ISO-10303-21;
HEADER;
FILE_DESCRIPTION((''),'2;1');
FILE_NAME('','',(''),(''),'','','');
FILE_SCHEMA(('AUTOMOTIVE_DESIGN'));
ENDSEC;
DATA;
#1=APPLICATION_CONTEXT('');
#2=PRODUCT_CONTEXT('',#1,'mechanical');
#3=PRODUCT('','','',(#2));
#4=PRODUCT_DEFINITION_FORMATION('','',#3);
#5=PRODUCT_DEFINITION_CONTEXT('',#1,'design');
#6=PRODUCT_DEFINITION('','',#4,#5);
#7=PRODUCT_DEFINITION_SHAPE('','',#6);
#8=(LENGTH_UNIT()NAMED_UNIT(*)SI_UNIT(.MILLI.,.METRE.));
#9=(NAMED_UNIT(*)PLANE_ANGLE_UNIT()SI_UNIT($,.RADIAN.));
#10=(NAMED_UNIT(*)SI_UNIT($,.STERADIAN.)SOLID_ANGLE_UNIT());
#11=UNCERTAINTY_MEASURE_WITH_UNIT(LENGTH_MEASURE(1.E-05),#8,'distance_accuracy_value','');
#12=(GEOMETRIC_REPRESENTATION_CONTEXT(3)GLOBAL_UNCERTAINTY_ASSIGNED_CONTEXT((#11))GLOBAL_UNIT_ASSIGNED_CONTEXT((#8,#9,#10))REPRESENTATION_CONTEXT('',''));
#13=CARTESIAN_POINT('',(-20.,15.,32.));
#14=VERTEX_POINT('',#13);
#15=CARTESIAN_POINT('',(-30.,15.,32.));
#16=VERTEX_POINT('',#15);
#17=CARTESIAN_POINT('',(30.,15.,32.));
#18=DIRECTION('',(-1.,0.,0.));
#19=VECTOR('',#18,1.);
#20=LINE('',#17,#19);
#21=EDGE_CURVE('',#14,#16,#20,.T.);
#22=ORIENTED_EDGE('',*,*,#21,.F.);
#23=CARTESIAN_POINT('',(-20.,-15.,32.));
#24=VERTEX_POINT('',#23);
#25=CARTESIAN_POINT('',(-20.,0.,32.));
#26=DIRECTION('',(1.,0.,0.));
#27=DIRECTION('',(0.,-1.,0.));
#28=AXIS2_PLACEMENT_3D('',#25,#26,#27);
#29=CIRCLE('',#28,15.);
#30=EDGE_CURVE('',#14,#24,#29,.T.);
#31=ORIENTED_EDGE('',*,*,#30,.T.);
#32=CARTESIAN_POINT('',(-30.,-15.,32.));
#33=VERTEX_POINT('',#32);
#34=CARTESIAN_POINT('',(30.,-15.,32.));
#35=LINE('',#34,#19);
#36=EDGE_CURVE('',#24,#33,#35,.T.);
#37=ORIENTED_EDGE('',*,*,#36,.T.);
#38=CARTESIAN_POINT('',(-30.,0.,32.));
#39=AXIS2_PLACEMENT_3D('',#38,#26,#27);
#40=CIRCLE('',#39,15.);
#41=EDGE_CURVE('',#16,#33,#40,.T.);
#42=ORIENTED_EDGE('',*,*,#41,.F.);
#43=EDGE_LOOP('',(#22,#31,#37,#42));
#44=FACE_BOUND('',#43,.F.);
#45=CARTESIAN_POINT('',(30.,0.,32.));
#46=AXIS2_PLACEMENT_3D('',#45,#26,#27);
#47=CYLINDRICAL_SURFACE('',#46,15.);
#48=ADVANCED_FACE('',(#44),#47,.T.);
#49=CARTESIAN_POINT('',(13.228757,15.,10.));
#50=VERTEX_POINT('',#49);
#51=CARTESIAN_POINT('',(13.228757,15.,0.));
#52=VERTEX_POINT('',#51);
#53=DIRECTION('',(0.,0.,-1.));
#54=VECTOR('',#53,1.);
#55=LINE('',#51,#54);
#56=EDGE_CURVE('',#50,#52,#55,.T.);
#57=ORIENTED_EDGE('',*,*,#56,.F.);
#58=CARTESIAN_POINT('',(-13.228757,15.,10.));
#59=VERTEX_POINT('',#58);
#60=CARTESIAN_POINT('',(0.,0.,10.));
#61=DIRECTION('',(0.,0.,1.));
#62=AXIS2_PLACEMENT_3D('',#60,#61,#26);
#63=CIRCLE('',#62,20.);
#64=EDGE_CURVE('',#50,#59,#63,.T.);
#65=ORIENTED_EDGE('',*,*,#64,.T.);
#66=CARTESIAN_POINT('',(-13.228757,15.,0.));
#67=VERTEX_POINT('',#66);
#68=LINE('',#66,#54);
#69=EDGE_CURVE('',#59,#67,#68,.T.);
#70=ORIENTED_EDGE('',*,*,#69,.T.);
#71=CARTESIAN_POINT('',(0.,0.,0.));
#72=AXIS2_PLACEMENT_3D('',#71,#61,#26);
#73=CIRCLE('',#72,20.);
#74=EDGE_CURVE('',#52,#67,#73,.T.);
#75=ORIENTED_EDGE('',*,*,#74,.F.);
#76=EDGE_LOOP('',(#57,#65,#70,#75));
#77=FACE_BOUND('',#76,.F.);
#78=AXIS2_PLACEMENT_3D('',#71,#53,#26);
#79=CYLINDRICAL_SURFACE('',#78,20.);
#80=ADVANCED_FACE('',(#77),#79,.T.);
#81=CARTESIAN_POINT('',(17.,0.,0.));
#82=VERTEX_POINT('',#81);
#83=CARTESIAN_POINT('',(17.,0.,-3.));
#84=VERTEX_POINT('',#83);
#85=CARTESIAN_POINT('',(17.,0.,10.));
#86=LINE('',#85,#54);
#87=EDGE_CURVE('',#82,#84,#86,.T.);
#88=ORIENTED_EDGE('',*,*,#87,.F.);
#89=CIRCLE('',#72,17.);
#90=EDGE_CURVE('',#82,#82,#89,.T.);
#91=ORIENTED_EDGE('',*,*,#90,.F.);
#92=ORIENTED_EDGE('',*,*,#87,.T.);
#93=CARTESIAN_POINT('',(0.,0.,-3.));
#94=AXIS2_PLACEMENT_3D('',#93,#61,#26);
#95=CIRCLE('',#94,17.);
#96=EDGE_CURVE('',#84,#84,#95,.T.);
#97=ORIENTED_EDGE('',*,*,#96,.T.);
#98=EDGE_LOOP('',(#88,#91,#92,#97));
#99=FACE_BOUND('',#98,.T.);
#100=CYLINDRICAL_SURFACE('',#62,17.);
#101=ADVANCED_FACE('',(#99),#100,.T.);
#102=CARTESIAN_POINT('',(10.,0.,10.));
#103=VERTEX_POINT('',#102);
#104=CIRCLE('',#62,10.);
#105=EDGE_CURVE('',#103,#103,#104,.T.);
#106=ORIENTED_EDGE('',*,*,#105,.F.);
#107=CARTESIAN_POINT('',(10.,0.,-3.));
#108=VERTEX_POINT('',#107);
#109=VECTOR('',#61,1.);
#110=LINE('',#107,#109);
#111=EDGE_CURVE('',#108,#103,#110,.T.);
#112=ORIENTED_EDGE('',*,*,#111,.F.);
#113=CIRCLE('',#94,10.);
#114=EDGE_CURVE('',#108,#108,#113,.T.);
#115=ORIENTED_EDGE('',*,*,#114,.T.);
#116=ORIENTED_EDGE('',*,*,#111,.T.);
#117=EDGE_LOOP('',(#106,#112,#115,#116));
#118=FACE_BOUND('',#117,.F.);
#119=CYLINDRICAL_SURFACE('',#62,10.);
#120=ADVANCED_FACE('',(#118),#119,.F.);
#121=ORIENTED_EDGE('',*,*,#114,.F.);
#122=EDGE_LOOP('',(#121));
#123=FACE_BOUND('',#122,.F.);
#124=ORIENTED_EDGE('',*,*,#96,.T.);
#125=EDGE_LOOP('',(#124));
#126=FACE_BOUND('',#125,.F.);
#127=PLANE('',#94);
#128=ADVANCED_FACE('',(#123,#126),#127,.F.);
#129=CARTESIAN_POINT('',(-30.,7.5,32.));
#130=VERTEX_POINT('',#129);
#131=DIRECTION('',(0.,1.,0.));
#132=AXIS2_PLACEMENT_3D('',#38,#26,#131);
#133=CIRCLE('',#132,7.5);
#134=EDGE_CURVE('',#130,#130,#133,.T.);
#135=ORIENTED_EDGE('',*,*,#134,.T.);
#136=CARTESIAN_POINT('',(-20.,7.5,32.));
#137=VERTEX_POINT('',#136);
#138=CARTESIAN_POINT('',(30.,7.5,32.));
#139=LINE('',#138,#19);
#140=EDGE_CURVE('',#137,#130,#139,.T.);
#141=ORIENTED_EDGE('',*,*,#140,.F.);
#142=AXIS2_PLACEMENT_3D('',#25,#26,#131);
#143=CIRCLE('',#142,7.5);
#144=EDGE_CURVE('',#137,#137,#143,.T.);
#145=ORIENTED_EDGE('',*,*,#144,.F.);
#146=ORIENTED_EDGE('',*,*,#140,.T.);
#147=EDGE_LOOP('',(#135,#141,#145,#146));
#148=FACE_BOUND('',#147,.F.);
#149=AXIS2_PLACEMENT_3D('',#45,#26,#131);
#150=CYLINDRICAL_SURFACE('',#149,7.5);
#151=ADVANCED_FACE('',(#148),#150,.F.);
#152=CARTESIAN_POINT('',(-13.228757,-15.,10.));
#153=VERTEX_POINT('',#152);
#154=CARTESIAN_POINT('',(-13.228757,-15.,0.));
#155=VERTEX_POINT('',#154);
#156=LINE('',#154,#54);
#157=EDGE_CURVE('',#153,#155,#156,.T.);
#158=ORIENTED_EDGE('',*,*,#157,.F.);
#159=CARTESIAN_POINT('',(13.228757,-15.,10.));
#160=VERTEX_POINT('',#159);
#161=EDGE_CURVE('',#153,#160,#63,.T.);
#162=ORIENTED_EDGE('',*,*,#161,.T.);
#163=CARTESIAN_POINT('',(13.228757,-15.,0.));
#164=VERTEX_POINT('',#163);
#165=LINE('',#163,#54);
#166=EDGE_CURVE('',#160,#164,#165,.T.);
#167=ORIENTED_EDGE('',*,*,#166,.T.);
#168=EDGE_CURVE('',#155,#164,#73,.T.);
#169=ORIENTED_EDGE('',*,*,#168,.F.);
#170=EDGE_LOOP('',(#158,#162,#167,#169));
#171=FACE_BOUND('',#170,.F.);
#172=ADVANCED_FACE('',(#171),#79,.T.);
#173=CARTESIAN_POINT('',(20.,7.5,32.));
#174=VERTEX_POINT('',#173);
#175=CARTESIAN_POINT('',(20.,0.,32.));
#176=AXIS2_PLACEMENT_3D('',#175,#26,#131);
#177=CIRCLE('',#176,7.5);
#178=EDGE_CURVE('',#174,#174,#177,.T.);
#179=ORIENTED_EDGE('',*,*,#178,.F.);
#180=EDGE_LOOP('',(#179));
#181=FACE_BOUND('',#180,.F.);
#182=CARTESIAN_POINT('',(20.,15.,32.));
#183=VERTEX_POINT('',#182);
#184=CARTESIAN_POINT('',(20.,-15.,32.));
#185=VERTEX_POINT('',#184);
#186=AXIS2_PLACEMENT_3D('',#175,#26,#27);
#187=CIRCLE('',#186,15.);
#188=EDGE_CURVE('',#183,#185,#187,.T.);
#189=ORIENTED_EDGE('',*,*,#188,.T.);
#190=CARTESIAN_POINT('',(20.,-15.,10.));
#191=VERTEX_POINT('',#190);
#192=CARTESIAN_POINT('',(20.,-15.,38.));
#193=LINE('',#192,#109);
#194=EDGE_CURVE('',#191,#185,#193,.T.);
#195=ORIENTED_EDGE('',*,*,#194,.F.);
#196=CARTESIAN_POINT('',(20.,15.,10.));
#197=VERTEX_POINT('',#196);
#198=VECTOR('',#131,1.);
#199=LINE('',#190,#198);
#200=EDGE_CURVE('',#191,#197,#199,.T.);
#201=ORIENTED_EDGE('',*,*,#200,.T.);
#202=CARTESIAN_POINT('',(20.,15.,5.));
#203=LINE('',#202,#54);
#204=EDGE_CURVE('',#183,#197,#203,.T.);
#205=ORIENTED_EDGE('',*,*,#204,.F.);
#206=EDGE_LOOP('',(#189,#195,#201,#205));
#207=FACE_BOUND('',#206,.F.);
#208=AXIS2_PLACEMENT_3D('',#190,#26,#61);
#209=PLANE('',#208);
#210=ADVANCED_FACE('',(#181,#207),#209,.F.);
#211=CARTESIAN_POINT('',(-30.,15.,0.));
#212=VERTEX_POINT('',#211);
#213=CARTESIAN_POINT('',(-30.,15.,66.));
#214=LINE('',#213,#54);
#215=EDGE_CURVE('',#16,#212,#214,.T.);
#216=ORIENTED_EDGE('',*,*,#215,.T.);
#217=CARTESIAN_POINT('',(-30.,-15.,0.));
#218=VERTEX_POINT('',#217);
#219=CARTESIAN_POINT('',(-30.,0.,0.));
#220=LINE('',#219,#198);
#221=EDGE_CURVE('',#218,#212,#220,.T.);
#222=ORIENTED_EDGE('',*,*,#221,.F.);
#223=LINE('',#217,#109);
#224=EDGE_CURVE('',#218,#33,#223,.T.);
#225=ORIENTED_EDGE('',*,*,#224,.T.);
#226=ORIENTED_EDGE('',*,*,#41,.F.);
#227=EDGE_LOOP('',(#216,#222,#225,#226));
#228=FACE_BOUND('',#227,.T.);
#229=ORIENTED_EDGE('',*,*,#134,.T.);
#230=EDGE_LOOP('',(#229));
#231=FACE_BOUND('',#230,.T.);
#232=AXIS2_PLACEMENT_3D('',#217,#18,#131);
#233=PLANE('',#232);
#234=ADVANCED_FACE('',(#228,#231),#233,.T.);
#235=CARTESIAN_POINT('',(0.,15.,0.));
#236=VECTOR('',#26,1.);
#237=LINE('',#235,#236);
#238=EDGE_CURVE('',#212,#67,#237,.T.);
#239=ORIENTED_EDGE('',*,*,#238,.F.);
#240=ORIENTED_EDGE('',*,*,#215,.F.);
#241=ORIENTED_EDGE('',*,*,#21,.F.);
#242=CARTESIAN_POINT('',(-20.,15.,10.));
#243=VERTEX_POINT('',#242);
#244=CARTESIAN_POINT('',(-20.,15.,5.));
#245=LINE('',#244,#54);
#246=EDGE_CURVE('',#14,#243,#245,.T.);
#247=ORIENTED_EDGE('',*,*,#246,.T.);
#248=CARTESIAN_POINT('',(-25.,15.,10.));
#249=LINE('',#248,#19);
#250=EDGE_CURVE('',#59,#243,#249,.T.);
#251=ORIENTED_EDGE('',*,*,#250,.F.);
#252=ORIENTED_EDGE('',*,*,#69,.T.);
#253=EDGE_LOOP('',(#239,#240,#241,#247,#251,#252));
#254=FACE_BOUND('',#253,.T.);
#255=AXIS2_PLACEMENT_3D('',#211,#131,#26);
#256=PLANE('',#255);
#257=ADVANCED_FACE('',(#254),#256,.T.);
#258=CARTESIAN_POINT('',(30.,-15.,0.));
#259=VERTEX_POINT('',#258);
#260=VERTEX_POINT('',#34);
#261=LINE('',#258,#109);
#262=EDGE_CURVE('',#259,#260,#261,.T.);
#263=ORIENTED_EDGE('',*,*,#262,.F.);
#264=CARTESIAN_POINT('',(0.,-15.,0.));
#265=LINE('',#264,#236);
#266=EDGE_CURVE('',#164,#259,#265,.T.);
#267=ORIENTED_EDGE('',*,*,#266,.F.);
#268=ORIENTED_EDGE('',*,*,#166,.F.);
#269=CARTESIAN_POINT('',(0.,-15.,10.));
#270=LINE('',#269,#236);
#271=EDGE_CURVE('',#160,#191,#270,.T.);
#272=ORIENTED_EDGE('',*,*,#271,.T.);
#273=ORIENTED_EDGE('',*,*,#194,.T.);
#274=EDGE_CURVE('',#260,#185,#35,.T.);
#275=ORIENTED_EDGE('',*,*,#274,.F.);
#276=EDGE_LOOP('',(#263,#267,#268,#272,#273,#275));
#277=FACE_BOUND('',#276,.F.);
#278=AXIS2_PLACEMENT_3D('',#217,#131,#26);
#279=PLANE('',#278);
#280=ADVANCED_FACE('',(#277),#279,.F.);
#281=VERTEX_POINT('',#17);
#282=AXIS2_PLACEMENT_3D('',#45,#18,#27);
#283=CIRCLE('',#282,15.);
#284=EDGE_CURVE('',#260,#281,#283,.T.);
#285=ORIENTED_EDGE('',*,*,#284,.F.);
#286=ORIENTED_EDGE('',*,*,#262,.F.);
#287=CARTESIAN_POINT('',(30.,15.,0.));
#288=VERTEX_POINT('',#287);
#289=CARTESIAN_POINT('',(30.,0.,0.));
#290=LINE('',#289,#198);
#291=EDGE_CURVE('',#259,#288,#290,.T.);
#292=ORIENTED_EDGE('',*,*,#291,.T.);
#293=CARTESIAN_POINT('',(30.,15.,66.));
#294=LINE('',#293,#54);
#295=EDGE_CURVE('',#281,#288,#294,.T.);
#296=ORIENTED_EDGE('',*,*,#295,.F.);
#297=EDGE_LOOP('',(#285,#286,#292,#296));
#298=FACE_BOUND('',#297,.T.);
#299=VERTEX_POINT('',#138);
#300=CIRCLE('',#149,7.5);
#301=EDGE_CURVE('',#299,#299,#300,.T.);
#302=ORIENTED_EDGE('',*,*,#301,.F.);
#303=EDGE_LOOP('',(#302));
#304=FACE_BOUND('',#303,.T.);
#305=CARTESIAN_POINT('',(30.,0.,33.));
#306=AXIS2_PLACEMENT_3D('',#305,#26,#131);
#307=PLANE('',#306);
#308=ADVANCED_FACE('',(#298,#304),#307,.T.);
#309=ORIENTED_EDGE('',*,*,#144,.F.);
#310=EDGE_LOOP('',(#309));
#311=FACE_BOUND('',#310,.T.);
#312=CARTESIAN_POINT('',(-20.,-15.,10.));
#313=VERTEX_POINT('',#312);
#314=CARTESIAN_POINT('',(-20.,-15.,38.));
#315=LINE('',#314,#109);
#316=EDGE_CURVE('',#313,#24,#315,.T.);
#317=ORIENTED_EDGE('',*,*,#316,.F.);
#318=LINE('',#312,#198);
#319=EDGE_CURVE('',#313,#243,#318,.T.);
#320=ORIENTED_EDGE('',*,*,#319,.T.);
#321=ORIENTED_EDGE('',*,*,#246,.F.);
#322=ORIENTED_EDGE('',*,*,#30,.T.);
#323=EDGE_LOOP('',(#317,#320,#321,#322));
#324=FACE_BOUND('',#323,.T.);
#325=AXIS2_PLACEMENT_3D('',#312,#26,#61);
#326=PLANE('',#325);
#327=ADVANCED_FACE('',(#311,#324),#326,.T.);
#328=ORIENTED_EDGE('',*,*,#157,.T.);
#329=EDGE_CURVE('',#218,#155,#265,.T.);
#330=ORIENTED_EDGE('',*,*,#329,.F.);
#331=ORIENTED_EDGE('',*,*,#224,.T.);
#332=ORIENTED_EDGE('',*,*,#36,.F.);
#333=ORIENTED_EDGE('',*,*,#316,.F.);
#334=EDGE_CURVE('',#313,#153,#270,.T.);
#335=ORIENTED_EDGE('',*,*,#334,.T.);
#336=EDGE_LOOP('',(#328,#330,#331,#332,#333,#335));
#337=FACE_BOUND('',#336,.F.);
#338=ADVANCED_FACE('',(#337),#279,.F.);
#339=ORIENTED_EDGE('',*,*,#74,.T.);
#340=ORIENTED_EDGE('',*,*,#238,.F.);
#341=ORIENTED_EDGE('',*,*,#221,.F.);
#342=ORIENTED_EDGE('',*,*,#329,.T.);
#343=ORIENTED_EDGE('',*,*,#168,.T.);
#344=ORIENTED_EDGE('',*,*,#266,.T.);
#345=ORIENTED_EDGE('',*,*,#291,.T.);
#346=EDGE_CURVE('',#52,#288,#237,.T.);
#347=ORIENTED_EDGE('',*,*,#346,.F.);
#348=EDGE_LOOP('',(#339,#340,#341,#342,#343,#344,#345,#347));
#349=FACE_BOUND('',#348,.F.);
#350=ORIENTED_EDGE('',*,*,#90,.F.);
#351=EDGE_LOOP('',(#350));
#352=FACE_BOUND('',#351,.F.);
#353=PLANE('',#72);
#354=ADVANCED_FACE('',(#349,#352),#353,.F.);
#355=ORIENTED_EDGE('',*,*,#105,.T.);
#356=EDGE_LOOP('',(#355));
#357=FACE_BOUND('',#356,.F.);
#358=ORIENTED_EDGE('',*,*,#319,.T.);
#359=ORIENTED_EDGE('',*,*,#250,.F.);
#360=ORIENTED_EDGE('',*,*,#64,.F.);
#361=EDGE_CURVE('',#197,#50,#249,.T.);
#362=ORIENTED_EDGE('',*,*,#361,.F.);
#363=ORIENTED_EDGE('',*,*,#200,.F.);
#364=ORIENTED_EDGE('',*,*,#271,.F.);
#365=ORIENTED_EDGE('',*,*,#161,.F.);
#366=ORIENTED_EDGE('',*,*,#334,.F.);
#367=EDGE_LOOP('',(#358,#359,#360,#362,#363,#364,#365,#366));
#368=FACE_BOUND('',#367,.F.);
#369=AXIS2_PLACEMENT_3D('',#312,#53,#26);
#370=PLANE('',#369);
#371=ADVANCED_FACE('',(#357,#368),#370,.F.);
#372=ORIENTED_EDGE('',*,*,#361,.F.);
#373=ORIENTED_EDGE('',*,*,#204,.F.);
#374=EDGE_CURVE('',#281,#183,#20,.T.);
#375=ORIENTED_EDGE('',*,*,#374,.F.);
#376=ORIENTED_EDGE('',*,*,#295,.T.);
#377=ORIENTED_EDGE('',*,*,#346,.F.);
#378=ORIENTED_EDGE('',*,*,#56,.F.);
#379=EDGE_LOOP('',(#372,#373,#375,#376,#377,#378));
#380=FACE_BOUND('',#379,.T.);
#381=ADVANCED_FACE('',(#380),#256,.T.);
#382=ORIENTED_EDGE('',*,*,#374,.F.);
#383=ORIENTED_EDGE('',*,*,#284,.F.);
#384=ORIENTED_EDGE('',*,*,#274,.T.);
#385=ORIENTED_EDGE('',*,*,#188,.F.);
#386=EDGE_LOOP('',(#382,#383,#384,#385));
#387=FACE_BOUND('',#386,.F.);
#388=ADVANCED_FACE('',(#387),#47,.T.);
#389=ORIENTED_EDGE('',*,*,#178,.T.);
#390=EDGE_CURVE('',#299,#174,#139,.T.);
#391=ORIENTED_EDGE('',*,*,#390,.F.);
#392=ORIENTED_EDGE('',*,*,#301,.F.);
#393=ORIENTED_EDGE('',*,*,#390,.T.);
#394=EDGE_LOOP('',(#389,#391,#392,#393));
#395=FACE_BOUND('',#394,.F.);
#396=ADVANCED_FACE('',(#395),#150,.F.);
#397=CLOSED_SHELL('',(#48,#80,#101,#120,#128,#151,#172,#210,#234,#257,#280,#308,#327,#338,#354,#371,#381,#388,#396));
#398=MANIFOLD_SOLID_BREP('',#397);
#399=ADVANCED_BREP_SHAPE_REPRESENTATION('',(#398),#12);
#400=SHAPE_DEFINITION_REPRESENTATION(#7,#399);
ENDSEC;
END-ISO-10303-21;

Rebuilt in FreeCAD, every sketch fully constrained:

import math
import FreeCAD as App
import Part
import Sketcher

V = App.Vector
Q = App.Units.Quantity


def add_polygon(sketch, points):
    """Adds a closed chain of lines whose ends are joined by coincident constraints."""
    first, n = sketch.GeometryCount, len(points)
    for a, b in zip(points, points[1:] + points[:1]):
        sketch.addGeometry(Part.LineSegment(App.Vector(*a, 0), App.Vector(*b, 0)), False)
    for i in range(n):
        sketch.addConstraint(Sketcher.Constraint("Coincident", first + i, 2, first + (i + 1) % n, 1))

doc = App.newDocument("Part")
params = doc.addObject("Spreadsheet::Sheet", "Params")
for row, (alias, value) in enumerate([
    ("sketch1_diameter", "40 mm"),
    ("sketch1_diameter2", "20 mm"),
    ("pad1_length", "10 mm"),
    ("sketch2_width", "60 mm"),
    ("sketch2_height", "30 mm"),
    ("pad2_length", "10 mm"),
    ("sketch3_diameter", "34 mm"),
    ("pad3_length", "13 mm"),
    ("sketch4_diameter", "20 mm"),
    ("sketch5_width", "30 mm"),
    ("sketch5_height", "66 mm"),
    ("pad4_length", "60 mm"),
    ("sketch6_width", "40 mm"),
    ("sketch6_height", "56 mm"),
    ("sketch7_diameter", "15 mm"),
    ("sketch7_radius", "15 mm"),
    ("sketch7_height", "34 mm"),
    ("sketch8_diameter", "20 mm"),
], start=1):
    params.set(f"A{row}", alias)
    params.set(f"B{row}", "=" + value)
    params.setAlias(f"B{row}", alias)

body = doc.addObject("PartDesign::Body", "Body")

sketch1 = body.newObject("Sketcher::SketchObject", "Sketch")
sketch1.AttachmentSupport = (doc.getObject("XY_Plane"), [""])
sketch1.MapMode = "FlatFace"
sketch1.addGeometry([
    Part.Circle(V(0, 0, 0), V(0, 0, 1), 20),
    Part.Circle(V(0, 0, 0), V(0, 0, 1), 10),
], False)
sketch1.addConstraint([
    Sketcher.Constraint("Coincident", 0, 3, -1, 1),
    Sketcher.Constraint("Coincident", 1, 3, -1, 1),
    Sketcher.Constraint("Diameter", 0, Q("40 mm")),
    Sketcher.Constraint("Diameter", 1, Q("20 mm")),
])
sketch1.setExpression("Constraints[2]", "Params.sketch1_diameter")
sketch1.setExpression("Constraints[3]", "Params.sketch1_diameter2")
pad1 = body.newObject("PartDesign::Pad", "Pad")
pad1.Profile = sketch1
pad1.setExpression("Length", "Params.pad1_length")

sketch2 = body.newObject("Sketcher::SketchObject", "Sketch001")
sketch2.AttachmentSupport = (doc.getObject("XY_Plane"), [""])
sketch2.MapMode = "FlatFace"
add_polygon(sketch2, [(-30, 15), (-30, -15), (30, -15), (30, 15)])
sketch2.addConstraint([
    Sketcher.Constraint("Vertical", 0),
    Sketcher.Constraint("Horizontal", 1),
    Sketcher.Constraint("Vertical", 2),
    Sketcher.Constraint("Horizontal", 3),
    Sketcher.Constraint("Symmetric", 0, 2, 2, 2, -1, 1),
    Sketcher.Constraint("DistanceX", 1, 1, 1, 2, Q("60 mm")),
    Sketcher.Constraint("DistanceY", 0, 2, 0, 1, Q("30 mm")),
])
sketch2.setExpression("Constraints[9]", "Params.sketch2_width")
sketch2.setExpression("Constraints[10]", "Params.sketch2_height")
pad2 = body.newObject("PartDesign::Pad", "Pad001")
pad2.Profile = sketch2
pad2.setExpression("Length", "Params.pad2_length")

sketch3 = body.newObject("Sketcher::SketchObject", "Sketch002")
sketch3.AttachmentSupport = (doc.getObject("XY_Plane"), [""])
sketch3.MapMode = "FlatFace"
sketch3.AttachmentOffset = App.Placement(V(0, 0, 10), App.Rotation())
sketch3.addGeometry(Part.Circle(V(0, 0, 0), V(0, 0, 1), 17), False)
sketch3.addConstraint([
    Sketcher.Constraint("Coincident", 0, 3, -1, 1),
    Sketcher.Constraint("Diameter", 0, Q("34 mm")),
])
sketch3.setExpression("Constraints[1]", "Params.sketch3_diameter")
pad3 = body.newObject("PartDesign::Pad", "Pad002")
pad3.Profile = sketch3
pad3.setExpression("Length", "Params.pad3_length")
pad3.Reversed = True

sketch4 = body.newObject("Sketcher::SketchObject", "Sketch003")
sketch4.AttachmentSupport = (doc.getObject("XY_Plane"), [""])
sketch4.MapMode = "FlatFace"
sketch4.AttachmentOffset = App.Placement(V(0, 0, 10), App.Rotation())
sketch4.addGeometry(Part.Circle(V(0, 0, 0), V(0, 0, 1), 10), False)
sketch4.addConstraint([
    Sketcher.Constraint("Coincident", 0, 3, -1, 1),
    Sketcher.Constraint("Diameter", 0, Q("20 mm")),
])
sketch4.setExpression("Constraints[1]", "Params.sketch4_diameter")
pocket1 = body.newObject("PartDesign::Pocket", "Pocket")
pocket1.Profile = sketch4
pocket1.Type = "ThroughAll"

sketch5 = body.newObject("Sketcher::SketchObject", "Sketch004")
sketch5.AttachmentSupport = (doc.getObject("YZ_Plane"), [""])
sketch5.MapMode = "FlatFace"
sketch5.AttachmentOffset = App.Placement(V(0, 0, 30), App.Rotation())
add_polygon(sketch5, [(-15, 66), (-15, 0), (15, 0), (15, 66)])
sketch5.addConstraint([
    Sketcher.Constraint("Vertical", 0),
    Sketcher.Constraint("Horizontal", 1),
    Sketcher.Constraint("Vertical", 2),
    Sketcher.Constraint("Horizontal", 3),
    Sketcher.Constraint("Symmetric", 0, 2, 1, 2, -1, 1),
    Sketcher.Constraint("DistanceX", 1, 1, 1, 2, Q("30 mm")),
    Sketcher.Constraint("DistanceY", 0, 2, 0, 1, Q("66 mm")),
])
sketch5.setExpression("Constraints[9]", "Params.sketch5_width")
sketch5.setExpression("Constraints[10]", "Params.sketch5_height")
pad4 = body.newObject("PartDesign::Pad", "Pad003")
pad4.Profile = sketch5
pad4.setExpression("Length", "Params.pad4_length")
pad4.Reversed = True

sketch6 = body.newObject("Sketcher::SketchObject", "Sketch005")
sketch6.AttachmentSupport = (doc.getObject("XZ_Plane"), [""])
sketch6.MapMode = "FlatFace"
sketch6.AttachmentOffset = App.Placement(V(0, 0, 15), App.Rotation())
add_polygon(sketch6, [(-20, 66), (-20, 10), (20, 10), (20, 66)])
sketch6.addConstraint([
    Sketcher.Constraint("Vertical", 0),
    Sketcher.Constraint("Horizontal", 1),
    Sketcher.Constraint("Vertical", 2),
    Sketcher.Constraint("Horizontal", 3),
    Sketcher.Constraint("DistanceX", 1, 1, 1, 2, Q("40 mm")),
    Sketcher.Constraint("DistanceY", 0, 2, 0, 1, Q("56 mm")),
    Sketcher.Constraint("DistanceX", 0, 2, -1, 1, Q("20 mm")),
    Sketcher.Constraint("DistanceY", -1, 1, 0, 2, Q("10 mm")),
])
sketch6.setExpression("Constraints[8]", "Params.sketch6_width")
sketch6.setExpression("Constraints[9]", "Params.sketch6_height")
pocket2 = body.newObject("PartDesign::Pocket", "Pocket001")
pocket2.Profile = sketch6
pocket2.Type = "ThroughAll"

sketch7 = body.newObject("Sketcher::SketchObject", "Sketch006")
sketch7.AttachmentSupport = (doc.getObject("YZ_Plane"), [""])
sketch7.MapMode = "FlatFace"
sketch7.AttachmentOffset = App.Placement(V(0, 0, 30), App.Rotation())
sketch7.addGeometry([
    Part.Circle(V(0, 32, 0), V(0, 0, 1), 8),
    Part.ArcOfCircle(Part.Circle(V(0, 32, 0), V(0, 0, 1), 15), math.radians(0), math.radians(180)),
    Part.LineSegment(V(15, 32, 0), V(15, 66, 0)),
    Part.LineSegment(V(15, 66, 0), V(-15, 66, 0)),
    Part.LineSegment(V(-15, 66, 0), V(-15, 32, 0)),
], False)
sketch7.addConstraint([
    Sketcher.Constraint("Tangent", 1, 1, 2, 1),
    Sketcher.Constraint("Coincident", 2, 2, 3, 1),
    Sketcher.Constraint("Coincident", 3, 2, 4, 1),
    Sketcher.Constraint("Tangent", 4, 2, 1, 2),
    Sketcher.Constraint("Vertical", 2),
    Sketcher.Constraint("Horizontal", 3),
    Sketcher.Constraint("Vertical", 4),
    Sketcher.Constraint("Coincident", 1, 3, 0, 3),
    Sketcher.Constraint("PointOnObject", 0, 3, -2),
    Sketcher.Constraint("Diameter", 0, Q("15 mm")),
    Sketcher.Constraint("Radius", 1, Q("15 mm")),
    Sketcher.Constraint("DistanceY", 2, 1, 2, 2, Q("34 mm")),
    Sketcher.Constraint("DistanceY", -1, 1, 0, 3, Q("32 mm")),
])
sketch7.setExpression("Constraints[9]", "Params.sketch7_diameter")
sketch7.setExpression("Constraints[10]", "Params.sketch7_radius")
sketch7.setExpression("Constraints[11]", "Params.sketch7_height")
pocket3 = body.newObject("PartDesign::Pocket", "Pocket002")
pocket3.Profile = sketch7
pocket3.Type = "ThroughAll"

sketch8 = body.newObject("Sketcher::SketchObject", "Sketch007")
sketch8.AttachmentSupport = (doc.getObject("XY_Plane"), [""])
sketch8.MapMode = "FlatFace"
sketch8.AttachmentOffset = App.Placement(V(0, 0, 10), App.Rotation())
sketch8.addGeometry(Part.Circle(V(0, 0, 0), V(0, 0, 1), 10), False)
sketch8.addConstraint([
    Sketcher.Constraint("Coincident", 0, 3, -1, 1),
    Sketcher.Constraint("Diameter", 0, Q("20 mm")),
])
sketch8.setExpression("Constraints[1]", "Params.sketch8_diameter")
pocket4 = body.newObject("PartDesign::Pocket", "Pocket003")
pocket4.Profile = sketch8
pocket4.Type = "ThroughAll"

doc.recompute()
